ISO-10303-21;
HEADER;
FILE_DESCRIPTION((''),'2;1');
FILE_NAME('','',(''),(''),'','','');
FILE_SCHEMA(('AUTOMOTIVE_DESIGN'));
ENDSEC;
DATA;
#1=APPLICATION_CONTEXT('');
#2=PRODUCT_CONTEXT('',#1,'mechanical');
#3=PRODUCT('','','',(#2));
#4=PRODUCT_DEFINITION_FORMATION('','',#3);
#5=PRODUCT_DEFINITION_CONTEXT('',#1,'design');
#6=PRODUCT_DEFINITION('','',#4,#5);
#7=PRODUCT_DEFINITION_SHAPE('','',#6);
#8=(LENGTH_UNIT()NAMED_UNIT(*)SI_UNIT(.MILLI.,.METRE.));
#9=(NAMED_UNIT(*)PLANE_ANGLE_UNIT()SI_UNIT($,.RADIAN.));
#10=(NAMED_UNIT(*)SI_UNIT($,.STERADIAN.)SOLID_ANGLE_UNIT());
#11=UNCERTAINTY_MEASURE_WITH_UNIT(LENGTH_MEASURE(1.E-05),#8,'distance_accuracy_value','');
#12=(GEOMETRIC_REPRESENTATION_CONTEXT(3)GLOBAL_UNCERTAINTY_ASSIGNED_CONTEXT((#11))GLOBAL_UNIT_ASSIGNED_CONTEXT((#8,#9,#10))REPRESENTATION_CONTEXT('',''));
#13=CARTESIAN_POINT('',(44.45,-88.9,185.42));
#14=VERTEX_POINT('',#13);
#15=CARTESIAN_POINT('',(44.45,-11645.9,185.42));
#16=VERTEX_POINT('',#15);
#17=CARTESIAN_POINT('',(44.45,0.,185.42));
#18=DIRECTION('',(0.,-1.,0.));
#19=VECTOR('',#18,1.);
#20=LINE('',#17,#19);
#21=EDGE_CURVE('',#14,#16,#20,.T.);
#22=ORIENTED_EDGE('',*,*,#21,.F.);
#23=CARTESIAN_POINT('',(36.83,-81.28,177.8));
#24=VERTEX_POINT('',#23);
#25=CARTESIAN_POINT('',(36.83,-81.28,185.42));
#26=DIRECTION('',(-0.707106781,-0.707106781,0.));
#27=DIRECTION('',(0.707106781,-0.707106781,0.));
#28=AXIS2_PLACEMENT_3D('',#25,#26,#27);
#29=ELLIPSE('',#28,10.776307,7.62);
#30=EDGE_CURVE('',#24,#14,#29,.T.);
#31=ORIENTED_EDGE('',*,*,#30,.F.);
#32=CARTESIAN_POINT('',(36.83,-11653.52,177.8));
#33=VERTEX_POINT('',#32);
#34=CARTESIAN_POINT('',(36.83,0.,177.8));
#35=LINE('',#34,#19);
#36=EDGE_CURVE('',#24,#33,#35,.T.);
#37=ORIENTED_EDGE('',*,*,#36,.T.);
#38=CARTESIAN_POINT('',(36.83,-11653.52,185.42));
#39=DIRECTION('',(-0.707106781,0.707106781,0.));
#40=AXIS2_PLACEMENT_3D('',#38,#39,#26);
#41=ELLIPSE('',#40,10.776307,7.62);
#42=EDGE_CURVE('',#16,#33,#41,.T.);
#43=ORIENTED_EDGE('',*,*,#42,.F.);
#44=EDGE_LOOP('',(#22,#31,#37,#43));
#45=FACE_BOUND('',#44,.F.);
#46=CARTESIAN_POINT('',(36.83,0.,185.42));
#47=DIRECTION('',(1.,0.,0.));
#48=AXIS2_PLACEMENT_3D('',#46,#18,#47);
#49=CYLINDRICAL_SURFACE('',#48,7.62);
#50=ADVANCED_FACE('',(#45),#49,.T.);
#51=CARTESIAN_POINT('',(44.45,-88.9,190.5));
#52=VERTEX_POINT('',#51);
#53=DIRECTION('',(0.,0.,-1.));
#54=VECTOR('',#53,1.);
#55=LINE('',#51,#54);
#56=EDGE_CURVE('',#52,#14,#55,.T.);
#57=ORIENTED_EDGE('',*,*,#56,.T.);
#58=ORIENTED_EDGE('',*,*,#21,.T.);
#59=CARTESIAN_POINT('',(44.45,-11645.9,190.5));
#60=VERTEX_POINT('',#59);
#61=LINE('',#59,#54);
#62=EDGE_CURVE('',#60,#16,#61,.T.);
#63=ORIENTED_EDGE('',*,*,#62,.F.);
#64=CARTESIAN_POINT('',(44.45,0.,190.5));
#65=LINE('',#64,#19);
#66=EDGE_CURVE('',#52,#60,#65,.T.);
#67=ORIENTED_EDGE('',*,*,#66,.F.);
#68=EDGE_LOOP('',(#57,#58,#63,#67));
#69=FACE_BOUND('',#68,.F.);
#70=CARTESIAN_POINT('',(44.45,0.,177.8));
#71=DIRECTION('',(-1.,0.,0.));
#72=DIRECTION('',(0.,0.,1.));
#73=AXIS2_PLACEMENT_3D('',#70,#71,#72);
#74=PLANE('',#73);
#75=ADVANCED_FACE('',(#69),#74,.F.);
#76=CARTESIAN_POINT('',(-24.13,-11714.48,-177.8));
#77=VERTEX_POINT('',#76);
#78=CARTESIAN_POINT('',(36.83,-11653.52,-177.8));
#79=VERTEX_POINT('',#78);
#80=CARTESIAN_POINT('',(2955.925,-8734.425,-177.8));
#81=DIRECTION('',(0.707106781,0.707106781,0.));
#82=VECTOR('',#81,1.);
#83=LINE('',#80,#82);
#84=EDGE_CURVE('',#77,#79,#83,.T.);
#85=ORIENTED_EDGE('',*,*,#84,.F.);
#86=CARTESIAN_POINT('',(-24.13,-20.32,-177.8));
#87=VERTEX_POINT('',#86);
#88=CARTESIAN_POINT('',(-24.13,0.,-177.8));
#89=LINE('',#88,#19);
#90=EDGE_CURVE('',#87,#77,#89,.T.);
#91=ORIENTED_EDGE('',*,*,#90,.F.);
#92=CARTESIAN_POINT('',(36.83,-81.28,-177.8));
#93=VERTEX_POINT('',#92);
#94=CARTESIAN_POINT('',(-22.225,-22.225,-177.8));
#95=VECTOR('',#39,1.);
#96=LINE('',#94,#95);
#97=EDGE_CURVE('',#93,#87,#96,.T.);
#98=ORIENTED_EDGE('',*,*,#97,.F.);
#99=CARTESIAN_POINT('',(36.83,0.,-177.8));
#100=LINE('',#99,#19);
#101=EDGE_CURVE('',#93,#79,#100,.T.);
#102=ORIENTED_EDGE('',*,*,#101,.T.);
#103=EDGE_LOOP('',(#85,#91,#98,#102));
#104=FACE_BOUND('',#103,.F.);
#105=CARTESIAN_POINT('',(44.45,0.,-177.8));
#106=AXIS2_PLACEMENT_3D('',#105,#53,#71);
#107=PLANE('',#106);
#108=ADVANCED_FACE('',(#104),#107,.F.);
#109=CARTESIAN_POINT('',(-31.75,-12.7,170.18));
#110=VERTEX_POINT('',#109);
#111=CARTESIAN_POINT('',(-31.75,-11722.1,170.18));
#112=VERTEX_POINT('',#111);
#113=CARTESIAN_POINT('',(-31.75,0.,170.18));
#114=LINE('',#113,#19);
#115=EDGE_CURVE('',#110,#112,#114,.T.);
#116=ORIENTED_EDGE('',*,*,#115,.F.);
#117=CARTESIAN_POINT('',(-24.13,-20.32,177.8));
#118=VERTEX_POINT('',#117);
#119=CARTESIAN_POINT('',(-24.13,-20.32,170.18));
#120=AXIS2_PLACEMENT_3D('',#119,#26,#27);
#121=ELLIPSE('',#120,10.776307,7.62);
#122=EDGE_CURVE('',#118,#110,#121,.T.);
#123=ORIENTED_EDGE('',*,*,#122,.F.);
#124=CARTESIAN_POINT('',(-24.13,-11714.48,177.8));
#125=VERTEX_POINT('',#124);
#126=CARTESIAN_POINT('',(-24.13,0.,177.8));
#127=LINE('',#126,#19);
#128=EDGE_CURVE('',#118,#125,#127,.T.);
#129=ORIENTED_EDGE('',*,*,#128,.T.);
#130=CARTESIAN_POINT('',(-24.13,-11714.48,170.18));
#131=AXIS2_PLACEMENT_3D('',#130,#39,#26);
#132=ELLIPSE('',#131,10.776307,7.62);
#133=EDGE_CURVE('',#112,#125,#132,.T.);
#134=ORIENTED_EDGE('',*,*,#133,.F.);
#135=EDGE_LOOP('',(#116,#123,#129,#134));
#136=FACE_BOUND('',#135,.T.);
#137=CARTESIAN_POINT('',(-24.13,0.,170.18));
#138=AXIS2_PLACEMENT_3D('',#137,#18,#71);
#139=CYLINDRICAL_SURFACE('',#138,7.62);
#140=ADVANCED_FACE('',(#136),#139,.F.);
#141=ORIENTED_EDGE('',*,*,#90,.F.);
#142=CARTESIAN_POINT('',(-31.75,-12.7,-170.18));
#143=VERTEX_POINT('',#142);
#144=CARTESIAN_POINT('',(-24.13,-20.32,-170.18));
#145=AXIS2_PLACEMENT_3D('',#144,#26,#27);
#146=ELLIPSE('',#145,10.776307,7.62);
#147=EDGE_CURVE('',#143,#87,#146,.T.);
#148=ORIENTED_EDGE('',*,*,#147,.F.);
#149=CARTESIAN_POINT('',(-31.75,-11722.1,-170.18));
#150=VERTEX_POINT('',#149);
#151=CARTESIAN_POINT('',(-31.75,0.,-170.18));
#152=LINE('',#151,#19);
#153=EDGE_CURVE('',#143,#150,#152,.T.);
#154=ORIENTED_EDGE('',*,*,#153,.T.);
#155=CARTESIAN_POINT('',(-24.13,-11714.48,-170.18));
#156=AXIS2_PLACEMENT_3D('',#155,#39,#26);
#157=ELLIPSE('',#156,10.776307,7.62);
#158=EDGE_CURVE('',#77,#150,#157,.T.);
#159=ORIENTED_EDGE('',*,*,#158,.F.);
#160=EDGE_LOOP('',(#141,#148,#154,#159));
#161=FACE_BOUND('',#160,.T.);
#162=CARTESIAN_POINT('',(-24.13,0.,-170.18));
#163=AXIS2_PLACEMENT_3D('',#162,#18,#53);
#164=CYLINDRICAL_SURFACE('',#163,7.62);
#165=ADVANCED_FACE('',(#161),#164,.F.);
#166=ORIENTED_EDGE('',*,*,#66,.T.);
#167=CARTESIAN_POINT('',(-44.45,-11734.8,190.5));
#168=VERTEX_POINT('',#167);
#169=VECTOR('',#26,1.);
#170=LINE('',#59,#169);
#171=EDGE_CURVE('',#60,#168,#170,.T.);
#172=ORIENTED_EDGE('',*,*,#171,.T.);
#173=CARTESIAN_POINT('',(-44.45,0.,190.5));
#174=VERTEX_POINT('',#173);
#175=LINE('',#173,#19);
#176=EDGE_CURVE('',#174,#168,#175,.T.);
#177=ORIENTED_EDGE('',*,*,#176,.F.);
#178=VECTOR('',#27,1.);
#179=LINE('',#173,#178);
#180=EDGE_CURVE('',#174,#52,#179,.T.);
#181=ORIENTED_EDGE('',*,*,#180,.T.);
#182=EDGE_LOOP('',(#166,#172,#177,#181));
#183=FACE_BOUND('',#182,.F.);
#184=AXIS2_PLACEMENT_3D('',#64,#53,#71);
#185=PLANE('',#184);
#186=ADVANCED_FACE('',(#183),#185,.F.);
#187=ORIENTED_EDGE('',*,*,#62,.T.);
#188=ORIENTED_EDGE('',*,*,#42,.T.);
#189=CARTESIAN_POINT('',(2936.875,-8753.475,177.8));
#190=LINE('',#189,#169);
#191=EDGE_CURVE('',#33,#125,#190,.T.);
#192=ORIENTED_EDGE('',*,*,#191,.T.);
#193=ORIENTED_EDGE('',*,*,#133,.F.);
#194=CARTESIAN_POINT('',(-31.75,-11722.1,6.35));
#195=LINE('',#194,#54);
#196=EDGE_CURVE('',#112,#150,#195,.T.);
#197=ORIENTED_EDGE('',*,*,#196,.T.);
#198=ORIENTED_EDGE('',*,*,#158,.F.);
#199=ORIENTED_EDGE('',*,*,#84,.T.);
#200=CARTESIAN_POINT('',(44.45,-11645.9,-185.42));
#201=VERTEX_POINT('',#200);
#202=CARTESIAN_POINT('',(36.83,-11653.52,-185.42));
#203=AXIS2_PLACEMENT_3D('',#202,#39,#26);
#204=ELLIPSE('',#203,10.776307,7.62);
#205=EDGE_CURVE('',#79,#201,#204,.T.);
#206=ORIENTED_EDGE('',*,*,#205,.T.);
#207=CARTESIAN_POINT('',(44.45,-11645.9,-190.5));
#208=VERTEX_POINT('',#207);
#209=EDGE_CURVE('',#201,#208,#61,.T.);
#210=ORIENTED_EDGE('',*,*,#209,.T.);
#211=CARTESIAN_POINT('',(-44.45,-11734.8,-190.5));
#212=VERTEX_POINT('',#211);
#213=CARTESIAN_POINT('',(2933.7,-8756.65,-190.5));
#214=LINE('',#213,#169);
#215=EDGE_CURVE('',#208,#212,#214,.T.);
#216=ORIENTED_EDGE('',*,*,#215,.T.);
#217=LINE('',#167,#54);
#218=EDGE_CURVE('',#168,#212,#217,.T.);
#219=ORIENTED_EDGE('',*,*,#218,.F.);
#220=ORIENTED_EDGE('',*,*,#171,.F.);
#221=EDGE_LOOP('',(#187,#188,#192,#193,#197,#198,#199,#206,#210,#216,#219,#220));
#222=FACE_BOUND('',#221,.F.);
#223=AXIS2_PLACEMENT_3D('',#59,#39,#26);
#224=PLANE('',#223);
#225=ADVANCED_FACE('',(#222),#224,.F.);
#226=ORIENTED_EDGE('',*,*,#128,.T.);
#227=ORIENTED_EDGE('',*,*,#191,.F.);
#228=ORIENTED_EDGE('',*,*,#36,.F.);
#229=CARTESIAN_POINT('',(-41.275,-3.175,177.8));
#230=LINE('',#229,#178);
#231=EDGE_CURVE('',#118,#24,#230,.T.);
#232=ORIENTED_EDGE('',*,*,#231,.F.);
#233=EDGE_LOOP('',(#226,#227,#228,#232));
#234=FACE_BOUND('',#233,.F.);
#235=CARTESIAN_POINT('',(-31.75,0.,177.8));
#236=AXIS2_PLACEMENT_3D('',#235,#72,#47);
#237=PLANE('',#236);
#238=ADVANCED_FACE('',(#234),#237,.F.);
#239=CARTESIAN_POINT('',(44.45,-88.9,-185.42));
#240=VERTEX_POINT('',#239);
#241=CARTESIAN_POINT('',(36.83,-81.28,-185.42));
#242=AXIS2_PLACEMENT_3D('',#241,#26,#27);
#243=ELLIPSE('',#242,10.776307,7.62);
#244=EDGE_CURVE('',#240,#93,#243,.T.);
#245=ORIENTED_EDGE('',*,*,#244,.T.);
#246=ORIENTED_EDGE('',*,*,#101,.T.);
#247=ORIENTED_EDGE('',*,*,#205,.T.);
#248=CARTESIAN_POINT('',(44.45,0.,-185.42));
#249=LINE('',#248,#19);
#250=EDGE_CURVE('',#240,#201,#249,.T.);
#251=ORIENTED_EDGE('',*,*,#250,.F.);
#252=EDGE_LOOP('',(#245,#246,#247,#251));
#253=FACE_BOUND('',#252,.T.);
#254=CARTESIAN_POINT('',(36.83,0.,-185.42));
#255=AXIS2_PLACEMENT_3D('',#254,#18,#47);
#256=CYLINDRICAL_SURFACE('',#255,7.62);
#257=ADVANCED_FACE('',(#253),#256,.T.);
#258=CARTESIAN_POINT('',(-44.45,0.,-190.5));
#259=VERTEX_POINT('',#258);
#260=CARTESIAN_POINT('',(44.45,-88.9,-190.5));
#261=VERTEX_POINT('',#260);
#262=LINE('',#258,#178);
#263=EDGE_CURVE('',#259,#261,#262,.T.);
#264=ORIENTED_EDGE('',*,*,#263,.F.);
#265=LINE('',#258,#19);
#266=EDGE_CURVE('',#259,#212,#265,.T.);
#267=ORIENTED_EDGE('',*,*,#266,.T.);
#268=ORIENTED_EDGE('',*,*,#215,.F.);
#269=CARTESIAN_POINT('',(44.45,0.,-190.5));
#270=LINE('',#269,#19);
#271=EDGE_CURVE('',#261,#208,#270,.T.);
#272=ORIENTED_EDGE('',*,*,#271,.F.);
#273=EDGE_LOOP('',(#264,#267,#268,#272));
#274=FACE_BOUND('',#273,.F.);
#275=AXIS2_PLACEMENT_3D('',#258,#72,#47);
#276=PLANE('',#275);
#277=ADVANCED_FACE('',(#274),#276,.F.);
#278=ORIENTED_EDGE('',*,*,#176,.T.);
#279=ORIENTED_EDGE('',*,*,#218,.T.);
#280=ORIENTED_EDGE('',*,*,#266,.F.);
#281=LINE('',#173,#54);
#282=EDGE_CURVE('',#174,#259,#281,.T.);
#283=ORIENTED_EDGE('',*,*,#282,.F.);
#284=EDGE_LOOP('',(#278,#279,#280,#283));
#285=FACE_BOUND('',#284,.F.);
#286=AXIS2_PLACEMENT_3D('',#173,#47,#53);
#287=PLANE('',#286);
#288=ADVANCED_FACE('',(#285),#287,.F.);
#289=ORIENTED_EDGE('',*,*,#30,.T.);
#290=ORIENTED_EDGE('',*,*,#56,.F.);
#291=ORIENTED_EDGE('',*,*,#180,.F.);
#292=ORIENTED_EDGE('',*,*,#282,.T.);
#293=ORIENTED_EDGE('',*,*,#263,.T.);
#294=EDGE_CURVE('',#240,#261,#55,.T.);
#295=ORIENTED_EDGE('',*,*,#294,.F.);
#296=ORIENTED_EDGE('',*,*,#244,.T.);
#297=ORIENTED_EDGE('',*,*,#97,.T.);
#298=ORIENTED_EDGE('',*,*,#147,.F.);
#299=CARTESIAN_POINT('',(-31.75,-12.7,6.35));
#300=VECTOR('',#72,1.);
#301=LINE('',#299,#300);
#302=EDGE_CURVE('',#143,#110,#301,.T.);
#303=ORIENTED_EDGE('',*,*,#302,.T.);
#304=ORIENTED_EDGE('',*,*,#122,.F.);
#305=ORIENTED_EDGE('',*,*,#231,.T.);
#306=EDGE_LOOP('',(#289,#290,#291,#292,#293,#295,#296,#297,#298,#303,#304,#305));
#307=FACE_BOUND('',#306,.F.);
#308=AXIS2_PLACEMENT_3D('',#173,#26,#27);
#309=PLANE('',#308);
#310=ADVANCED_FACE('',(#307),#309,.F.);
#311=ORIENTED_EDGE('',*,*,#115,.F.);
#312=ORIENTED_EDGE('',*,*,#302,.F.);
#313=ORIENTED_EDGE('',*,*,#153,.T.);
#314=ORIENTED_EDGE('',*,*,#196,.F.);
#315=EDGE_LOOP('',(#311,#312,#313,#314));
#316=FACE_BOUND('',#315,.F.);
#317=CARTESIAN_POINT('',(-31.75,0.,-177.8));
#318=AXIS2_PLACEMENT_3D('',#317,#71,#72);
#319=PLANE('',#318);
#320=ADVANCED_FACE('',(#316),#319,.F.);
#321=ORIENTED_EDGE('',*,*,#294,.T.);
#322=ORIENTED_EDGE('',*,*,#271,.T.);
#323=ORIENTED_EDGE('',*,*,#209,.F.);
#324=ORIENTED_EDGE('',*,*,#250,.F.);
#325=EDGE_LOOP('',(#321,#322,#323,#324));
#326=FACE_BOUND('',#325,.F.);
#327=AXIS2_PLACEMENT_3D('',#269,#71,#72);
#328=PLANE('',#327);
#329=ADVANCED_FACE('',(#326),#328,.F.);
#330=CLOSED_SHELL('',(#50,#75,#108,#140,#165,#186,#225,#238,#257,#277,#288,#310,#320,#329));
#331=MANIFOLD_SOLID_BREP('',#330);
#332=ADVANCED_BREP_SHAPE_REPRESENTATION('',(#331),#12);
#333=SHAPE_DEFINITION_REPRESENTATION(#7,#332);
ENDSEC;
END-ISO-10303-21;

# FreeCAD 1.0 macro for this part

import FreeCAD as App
import Part
import Sketcher
Q = App.Units.Quantity


def edges_at(feature, points):
    """Names of the edges that pass closest to the given points."""
    edges = feature.Shape.Edges
    near = lambda p: min(range(len(edges)), key=lambda i: edges[i].distToShape(Part.Vertex(*p))[0])
    return sorted({f"Edge{near(p) + 1}" for p in points})


def add_polygon(sketch, points):
    """Adds a closed chain of lines whose ends are joined by coincident constraints."""
    first, n = sketch.GeometryCount, len(points)
    for a, b in zip(points, points[1:] + points[:1]):
        sketch.addGeometry(Part.LineSegment(App.Vector(*a, 0), App.Vector(*b, 0)), False)
    for i in range(n):
        sketch.addConstraint(Sketcher.Constraint("Coincident", first + i, 2, first + (i + 1) % n, 1))

doc = App.newDocument("Part")
body = doc.addObject("PartDesign::Body", "Body")

# Sketch on XZ plane
sketch1 = body.newObject("Sketcher::SketchObject", "Sketch")
sketch1.AttachmentSupport = (doc.getObject("XZ_Plane"), [""])
sketch1.MapMode = "FlatFace"
add_polygon(sketch1, [(44, 178), (44, 190), (-44, 190), (-44, -190), (44, -190), (44, -178), (-32, -178), (-32, 178)])  # lines 0-7
sketch1.addConstraint(Sketcher.Constraint("Vertical", 0))
sketch1.addConstraint(Sketcher.Constraint("Horizontal", 1))
sketch1.addConstraint(Sketcher.Constraint("Vertical", 2))
sketch1.addConstraint(Sketcher.Constraint("Horizontal", 3))
sketch1.addConstraint(Sketcher.Constraint("Vertical", 4))
sketch1.addConstraint(Sketcher.Constraint("Horizontal", 5))
sketch1.addConstraint(Sketcher.Constraint("Vertical", 6))
sketch1.addConstraint(Sketcher.Constraint("Horizontal", 7))
sketch1.addConstraint(Sketcher.Constraint("Symmetric", 0, 2, 2, 2, -1, 1))
sketch1.addConstraint(Sketcher.Constraint("Symmetric", 4, 2, 7, 2, -1))
sketch1.addConstraint(Sketcher.Constraint("DistanceX", 5, 2, 5, 1, Q("3 in")))
sketch1.addConstraint(Sketcher.Constraint("DistanceY", 2, 2, 2, 1, Q("15 in")))
sketch1.addConstraint(Sketcher.Constraint("DistanceY", 6, 1, 6, 2, Q("14 in")))
sketch1.addConstraint(Sketcher.Constraint("DistanceX", 1, 2, 1, 1, Q("3.5 in")))
pad1 = body.newObject("PartDesign::Pad", "Pad")
pad1.Profile = sketch1
pad1.Length = Q("462 in")
doc.recompute()

fillet = body.newObject("PartDesign::Fillet", "Fillet")
fillet.Base = (pad1, edges_at(pad1, [
    (44.45, -5867.4, -177.8),
    (-31.75, -5867.4, -177.8),
    (-31.75, -5867.4, 177.8),
    (44.45, -5867.4, 177.8),
]))
fillet.Radius = Q("0.3 in")

# Sketch on XY plane
sketch2 = body.newObject("Sketcher::SketchObject", "Sketch001")
sketch2.AttachmentSupport = (doc.getObject("XY_Plane"), [""])
sketch2.MapMode = "FlatFace"
sketch2.AttachmentOffset = App.Placement(App.Vector(0, 0, 7.5 * 25.4), App.Rotation())
add_polygon(sketch2, [(44, 0), (-44, 0), (44, -89)])  # lines 0-2
sketch2.addConstraint(Sketcher.Constraint("Horizontal", 0))
sketch2.addConstraint(Sketcher.Constraint("Vertical", 2))
sketch2.addConstraint(Sketcher.Constraint("Symmetric", 0, 2, 2, 2, -1, 1))
sketch2.addConstraint(Sketcher.Constraint("Equal", 0, 2))
sketch2.addConstraint(Sketcher.Constraint("DistanceX", 0, 2, 0, 1, Q("3.5 in")))
pocket1 = body.newObject("PartDesign::Pocket", "Pocket")
pocket1.Profile = sketch2
pocket1.Type = "ThroughAll"

# Sketch on XY plane
sketch3 = body.newObject("Sketcher::SketchObject", "Sketch002")
sketch3.AttachmentSupport = (doc.getObject("XY_Plane"), [""])
sketch3.MapMode = "FlatFace"
sketch3.AttachmentOffset = App.Placement(App.Vector(0, 0, 7.5 * 25.4), App.Rotation())
add_polygon(sketch3, [(44, -11646), (-44, -11735), (44, -11735)])  # lines 0-2
sketch3.addConstraint(Sketcher.Constraint("Horizontal", 1))
sketch3.addConstraint(Sketcher.Constraint("Vertical", 2))
sketch3.addConstraint(Sketcher.Constraint("Equal", 1, 2))
sketch3.addConstraint(Sketcher.Constraint("DistanceX", 1, 1, 1, 2, Q("3.5 in")))
sketch3.addConstraint(Sketcher.Constraint("DistanceY", 0, 2, -1, 1, Q("462 in")))
sketch3.addConstraint(Sketcher.Constraint("DistanceX", 0, 2, -1, 1, Q("1.75 in")))
pocket2 = body.newObject("PartDesign::Pocket", "Pocket001")
pocket2.Profile = sketch3
pocket2.Type = "ThroughAll"

doc.recompute()
